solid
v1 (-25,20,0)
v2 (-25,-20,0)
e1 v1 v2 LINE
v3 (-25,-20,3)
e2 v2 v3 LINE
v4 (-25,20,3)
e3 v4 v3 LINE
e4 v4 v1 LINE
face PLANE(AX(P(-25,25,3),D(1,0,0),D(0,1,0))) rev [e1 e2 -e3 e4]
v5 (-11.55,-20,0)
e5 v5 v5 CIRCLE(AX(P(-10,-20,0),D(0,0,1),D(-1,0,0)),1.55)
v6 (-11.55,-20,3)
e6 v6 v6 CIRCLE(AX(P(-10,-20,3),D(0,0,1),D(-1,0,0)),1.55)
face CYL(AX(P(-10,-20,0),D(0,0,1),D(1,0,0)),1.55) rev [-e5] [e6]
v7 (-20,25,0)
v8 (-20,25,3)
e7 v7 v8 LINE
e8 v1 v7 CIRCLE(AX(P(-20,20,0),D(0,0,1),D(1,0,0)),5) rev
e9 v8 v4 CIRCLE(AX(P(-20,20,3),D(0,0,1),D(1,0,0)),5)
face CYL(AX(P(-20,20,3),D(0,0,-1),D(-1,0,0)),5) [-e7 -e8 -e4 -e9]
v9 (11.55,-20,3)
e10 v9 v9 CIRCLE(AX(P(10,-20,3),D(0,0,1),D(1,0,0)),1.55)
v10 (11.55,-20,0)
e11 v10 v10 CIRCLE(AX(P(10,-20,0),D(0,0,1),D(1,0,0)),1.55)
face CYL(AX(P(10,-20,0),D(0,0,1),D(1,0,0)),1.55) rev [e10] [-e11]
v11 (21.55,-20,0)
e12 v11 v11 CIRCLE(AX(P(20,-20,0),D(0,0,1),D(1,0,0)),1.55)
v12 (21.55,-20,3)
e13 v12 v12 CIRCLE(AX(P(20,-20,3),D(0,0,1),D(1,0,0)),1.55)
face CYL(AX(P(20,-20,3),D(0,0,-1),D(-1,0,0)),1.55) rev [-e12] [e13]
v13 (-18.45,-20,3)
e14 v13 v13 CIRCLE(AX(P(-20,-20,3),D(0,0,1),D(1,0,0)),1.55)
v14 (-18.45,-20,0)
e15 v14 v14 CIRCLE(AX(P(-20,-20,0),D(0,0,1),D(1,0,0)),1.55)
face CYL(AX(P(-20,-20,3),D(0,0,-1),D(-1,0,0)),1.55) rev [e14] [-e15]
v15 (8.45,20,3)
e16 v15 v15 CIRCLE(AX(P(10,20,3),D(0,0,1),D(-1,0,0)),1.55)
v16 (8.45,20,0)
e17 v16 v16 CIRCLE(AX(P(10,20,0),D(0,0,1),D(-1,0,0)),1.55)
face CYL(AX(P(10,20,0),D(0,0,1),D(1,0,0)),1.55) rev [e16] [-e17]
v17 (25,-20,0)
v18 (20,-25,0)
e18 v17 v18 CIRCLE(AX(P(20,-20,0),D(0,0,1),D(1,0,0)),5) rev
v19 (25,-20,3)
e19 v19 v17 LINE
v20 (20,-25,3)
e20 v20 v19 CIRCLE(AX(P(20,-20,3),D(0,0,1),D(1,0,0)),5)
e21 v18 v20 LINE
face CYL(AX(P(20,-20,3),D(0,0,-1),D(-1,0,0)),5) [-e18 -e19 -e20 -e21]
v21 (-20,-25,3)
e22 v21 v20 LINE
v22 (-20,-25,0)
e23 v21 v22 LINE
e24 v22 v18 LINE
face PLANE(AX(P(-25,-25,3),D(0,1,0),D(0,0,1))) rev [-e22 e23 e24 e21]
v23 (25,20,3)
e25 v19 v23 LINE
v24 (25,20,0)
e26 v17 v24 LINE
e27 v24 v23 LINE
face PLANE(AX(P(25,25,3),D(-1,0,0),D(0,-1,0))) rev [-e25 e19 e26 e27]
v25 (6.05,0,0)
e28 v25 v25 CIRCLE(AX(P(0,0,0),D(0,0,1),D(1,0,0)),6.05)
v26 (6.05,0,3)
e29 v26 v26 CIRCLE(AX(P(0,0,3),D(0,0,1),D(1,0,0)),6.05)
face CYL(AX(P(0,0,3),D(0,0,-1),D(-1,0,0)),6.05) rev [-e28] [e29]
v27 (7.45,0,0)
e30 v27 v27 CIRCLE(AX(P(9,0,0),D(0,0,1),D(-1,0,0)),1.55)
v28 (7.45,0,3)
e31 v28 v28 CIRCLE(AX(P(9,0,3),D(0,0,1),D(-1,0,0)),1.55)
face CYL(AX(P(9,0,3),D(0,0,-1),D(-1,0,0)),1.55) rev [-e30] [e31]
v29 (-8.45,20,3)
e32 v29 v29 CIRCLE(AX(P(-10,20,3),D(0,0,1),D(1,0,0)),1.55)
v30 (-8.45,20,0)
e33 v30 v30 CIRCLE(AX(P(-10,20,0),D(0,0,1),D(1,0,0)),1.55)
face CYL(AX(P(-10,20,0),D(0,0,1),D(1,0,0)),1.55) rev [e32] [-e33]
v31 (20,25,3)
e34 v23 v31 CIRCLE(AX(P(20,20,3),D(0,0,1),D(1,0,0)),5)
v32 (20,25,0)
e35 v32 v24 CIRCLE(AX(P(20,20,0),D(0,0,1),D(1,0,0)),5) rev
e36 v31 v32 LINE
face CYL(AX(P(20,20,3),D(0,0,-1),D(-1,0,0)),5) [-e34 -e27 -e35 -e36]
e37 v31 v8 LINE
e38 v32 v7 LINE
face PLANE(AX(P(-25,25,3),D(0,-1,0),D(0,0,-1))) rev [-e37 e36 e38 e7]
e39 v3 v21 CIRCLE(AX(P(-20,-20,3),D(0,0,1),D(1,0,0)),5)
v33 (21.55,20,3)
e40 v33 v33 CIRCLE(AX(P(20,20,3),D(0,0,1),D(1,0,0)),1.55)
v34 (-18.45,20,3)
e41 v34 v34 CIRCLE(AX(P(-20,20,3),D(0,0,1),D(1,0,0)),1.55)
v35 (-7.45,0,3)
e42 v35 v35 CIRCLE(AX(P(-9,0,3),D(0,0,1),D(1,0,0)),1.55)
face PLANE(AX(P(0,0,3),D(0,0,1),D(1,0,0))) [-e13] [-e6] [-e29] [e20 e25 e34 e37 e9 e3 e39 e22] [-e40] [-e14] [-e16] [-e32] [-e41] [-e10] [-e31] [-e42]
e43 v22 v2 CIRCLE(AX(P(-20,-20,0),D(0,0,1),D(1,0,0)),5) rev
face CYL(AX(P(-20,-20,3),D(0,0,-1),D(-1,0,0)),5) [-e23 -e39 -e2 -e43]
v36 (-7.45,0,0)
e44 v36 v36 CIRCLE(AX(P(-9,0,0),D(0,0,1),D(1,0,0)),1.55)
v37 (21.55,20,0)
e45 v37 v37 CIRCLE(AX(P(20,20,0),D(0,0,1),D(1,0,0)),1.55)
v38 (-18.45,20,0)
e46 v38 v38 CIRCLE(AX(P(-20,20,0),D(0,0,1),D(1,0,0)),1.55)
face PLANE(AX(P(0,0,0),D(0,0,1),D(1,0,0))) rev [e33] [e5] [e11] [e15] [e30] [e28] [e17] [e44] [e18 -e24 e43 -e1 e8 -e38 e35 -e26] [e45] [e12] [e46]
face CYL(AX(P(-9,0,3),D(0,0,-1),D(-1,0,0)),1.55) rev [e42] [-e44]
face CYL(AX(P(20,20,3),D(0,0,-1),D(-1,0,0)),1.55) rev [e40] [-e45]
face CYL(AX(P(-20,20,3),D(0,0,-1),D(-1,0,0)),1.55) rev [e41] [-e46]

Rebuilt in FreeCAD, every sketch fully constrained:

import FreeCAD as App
import Part
import Sketcher
Q = App.Units.Quantity


def edges_at(feature, points):
    """Names of the edges that pass closest to the given points."""
    edges = feature.Shape.Edges
    near = lambda p: min(range(len(edges)), key=lambda i: edges[i].distToShape(Part.Vertex(*p))[0])
    return sorted({f"Edge{near(p) + 1}" for p in points})

doc = App.newDocument("Part")
body = doc.addObject("PartDesign::Body", "Body")

sketch1 = doc.addObject("Sketcher::SketchObject", "Sketch")
body.addObject(sketch1)
sketch1.AttachmentSupport = (doc.XY_Plane, [""])
sketch1.MapMode = "FlatFace"
sketch1.addGeometry([
    Part.LineSegment(App.Vector(-25, 25, 0), App.Vector(-25, -25, 0)),
    Part.LineSegment(App.Vector(-25, -25, 0), App.Vector(25, -25, 0)),
    Part.LineSegment(App.Vector(25, -25, 0), App.Vector(25, 25, 0)),
    Part.LineSegment(App.Vector(25, 25, 0), App.Vector(-25, 25, 0)),
    Part.Circle(App.Vector(-20, -20, 0), App.Vector(0, 0, 1), 1.6),
    Part.Circle(App.Vector(20, -20, 0), App.Vector(0, 0, 1), 1.6),
    Part.Circle(App.Vector(-9, 0, 0), App.Vector(0, 0, 1), 1.6),
    Part.Circle(App.Vector(-20, 20, 0), App.Vector(0, 0, 1), 1.6),
    Part.Circle(App.Vector(0, 0, 0), App.Vector(0, 0, 1), 6),
    Part.Circle(App.Vector(9, 0, 0), App.Vector(0, 0, 1), 1.6),
    Part.Circle(App.Vector(20, 20, 0), App.Vector(0, 0, 1), 1.6),
], False)
sketch1.addConstraint([
    Sketcher.Constraint("Coincident", 0, 2, 1, 1),
    Sketcher.Constraint("Coincident", 1, 2, 2, 1),
    Sketcher.Constraint("Coincident", 2, 2, 3, 1),
    Sketcher.Constraint("Coincident", 3, 2, 0, 1),
    Sketcher.Constraint("Vertical", 0),
    Sketcher.Constraint("Horizontal", 1),
    Sketcher.Constraint("Vertical", 2),
    Sketcher.Constraint("Horizontal", 3),
    Sketcher.Constraint("Coincident", 8, 3, -1, 1),
    Sketcher.Constraint("Equal", 4, 5),
    Sketcher.Constraint("Equal", 5, 6),
    Sketcher.Constraint("Equal", 6, 7),
    Sketcher.Constraint("Equal", 7, 9),
    Sketcher.Constraint("Equal", 9, 10),
    Sketcher.Constraint("Symmetric", 5, 3, 7, 3, -1, 1),
    Sketcher.Constraint("Symmetric", 6, 3, 9, 3, -1, 1),
    Sketcher.Constraint("Symmetric", 4, 3, 10, 3, -1, 1),
    Sketcher.Constraint("Symmetric", 0, 2, 2, 2, -1, 1),
    Sketcher.Constraint("Symmetric", 4, 3, 5, 3, -2),
    Sketcher.Constraint("PointOnObject", 6, 3, -1),
    Sketcher.Constraint("Equal", 3, 0),
    Sketcher.Constraint("Diameter", 4, Q("3.1 mm")),
    Sketcher.Constraint("Diameter", 8, Q("12.1 mm")),
    Sketcher.Constraint("DistanceX", 1, 1, 1, 2, Q("50 mm")),
    Sketcher.Constraint("DistanceX", 4, 3, -1, 1, Q("20 mm")),
    Sketcher.Constraint("DistanceY", 4, 3, -1, 1, Q("20 mm")),
    Sketcher.Constraint("DistanceX", 6, 3, -1, 1, Q("9 mm")),
])
pad1 = doc.addObject("PartDesign::Pad", "Pad")
body.addObject(pad1)
pad1.Profile = sketch1
pad1.Length = 3
doc.recompute()

fillet = doc.addObject("PartDesign::Fillet", "Fillet")
body.addObject(fillet)
fillet.Base = (pad1, edges_at(pad1, [
    (25, -25, 1.5),
    (-25, -25, 1.5),
    (-25, 25, 1.5),
    (25, 25, 1.5),
]))
fillet.Radius = 5

sketch2 = doc.addObject("Sketcher::SketchObject", "Sketch001")
body.addObject(sketch2)
sketch2.AttachmentSupport = (doc.XY_Plane, [""])
sketch2.MapMode = "FlatFace"
sketch2.AttachmentOffset = App.Placement(App.Vector(0, 0, 3), App.Rotation())
sketch2.addGeometry([
    Part.Circle(App.Vector(-10, 20, 0), App.Vector(0, 0, 1), 1.6),
    Part.Circle(App.Vector(10, 20, 0), App.Vector(0, 0, 1), 1.6),
    Part.Circle(App.Vector(10, -20, 0), App.Vector(0, 0, 1), 1.6),
    Part.Circle(App.Vector(-10, -20, 0), App.Vector(0, 0, 1), 1.6),
], False)
sketch2.addConstraint([
    Sketcher.Constraint("Equal", 0, 1),
    Sketcher.Constraint("Equal", 1, 2),
    Sketcher.Constraint("Equal", 2, 3),
    Sketcher.Constraint("Symmetric", 0, 3, 2, 3, -1, 1),
    Sketcher.Constraint("Symmetric", 1, 3, 3, 3, -1, 1),
    Sketcher.Constraint("Symmetric", 0, 3, 1, 3, -2),
    Sketcher.Constraint("Diameter", 0, Q("3.1 mm")),
    Sketcher.Constraint("DistanceX", 0, 3, -1, 1, Q("10 mm")),
    Sketcher.Constraint("DistanceY", -1, 1, 0, 3, Q("20 mm")),
])
pocket1 = doc.addObject("PartDesign::Pocket", "Pocket")
body.addObject(pocket1)
pocket1.Profile = sketch2
pocket1.Type = "ThroughAll"

doc.recompute()
